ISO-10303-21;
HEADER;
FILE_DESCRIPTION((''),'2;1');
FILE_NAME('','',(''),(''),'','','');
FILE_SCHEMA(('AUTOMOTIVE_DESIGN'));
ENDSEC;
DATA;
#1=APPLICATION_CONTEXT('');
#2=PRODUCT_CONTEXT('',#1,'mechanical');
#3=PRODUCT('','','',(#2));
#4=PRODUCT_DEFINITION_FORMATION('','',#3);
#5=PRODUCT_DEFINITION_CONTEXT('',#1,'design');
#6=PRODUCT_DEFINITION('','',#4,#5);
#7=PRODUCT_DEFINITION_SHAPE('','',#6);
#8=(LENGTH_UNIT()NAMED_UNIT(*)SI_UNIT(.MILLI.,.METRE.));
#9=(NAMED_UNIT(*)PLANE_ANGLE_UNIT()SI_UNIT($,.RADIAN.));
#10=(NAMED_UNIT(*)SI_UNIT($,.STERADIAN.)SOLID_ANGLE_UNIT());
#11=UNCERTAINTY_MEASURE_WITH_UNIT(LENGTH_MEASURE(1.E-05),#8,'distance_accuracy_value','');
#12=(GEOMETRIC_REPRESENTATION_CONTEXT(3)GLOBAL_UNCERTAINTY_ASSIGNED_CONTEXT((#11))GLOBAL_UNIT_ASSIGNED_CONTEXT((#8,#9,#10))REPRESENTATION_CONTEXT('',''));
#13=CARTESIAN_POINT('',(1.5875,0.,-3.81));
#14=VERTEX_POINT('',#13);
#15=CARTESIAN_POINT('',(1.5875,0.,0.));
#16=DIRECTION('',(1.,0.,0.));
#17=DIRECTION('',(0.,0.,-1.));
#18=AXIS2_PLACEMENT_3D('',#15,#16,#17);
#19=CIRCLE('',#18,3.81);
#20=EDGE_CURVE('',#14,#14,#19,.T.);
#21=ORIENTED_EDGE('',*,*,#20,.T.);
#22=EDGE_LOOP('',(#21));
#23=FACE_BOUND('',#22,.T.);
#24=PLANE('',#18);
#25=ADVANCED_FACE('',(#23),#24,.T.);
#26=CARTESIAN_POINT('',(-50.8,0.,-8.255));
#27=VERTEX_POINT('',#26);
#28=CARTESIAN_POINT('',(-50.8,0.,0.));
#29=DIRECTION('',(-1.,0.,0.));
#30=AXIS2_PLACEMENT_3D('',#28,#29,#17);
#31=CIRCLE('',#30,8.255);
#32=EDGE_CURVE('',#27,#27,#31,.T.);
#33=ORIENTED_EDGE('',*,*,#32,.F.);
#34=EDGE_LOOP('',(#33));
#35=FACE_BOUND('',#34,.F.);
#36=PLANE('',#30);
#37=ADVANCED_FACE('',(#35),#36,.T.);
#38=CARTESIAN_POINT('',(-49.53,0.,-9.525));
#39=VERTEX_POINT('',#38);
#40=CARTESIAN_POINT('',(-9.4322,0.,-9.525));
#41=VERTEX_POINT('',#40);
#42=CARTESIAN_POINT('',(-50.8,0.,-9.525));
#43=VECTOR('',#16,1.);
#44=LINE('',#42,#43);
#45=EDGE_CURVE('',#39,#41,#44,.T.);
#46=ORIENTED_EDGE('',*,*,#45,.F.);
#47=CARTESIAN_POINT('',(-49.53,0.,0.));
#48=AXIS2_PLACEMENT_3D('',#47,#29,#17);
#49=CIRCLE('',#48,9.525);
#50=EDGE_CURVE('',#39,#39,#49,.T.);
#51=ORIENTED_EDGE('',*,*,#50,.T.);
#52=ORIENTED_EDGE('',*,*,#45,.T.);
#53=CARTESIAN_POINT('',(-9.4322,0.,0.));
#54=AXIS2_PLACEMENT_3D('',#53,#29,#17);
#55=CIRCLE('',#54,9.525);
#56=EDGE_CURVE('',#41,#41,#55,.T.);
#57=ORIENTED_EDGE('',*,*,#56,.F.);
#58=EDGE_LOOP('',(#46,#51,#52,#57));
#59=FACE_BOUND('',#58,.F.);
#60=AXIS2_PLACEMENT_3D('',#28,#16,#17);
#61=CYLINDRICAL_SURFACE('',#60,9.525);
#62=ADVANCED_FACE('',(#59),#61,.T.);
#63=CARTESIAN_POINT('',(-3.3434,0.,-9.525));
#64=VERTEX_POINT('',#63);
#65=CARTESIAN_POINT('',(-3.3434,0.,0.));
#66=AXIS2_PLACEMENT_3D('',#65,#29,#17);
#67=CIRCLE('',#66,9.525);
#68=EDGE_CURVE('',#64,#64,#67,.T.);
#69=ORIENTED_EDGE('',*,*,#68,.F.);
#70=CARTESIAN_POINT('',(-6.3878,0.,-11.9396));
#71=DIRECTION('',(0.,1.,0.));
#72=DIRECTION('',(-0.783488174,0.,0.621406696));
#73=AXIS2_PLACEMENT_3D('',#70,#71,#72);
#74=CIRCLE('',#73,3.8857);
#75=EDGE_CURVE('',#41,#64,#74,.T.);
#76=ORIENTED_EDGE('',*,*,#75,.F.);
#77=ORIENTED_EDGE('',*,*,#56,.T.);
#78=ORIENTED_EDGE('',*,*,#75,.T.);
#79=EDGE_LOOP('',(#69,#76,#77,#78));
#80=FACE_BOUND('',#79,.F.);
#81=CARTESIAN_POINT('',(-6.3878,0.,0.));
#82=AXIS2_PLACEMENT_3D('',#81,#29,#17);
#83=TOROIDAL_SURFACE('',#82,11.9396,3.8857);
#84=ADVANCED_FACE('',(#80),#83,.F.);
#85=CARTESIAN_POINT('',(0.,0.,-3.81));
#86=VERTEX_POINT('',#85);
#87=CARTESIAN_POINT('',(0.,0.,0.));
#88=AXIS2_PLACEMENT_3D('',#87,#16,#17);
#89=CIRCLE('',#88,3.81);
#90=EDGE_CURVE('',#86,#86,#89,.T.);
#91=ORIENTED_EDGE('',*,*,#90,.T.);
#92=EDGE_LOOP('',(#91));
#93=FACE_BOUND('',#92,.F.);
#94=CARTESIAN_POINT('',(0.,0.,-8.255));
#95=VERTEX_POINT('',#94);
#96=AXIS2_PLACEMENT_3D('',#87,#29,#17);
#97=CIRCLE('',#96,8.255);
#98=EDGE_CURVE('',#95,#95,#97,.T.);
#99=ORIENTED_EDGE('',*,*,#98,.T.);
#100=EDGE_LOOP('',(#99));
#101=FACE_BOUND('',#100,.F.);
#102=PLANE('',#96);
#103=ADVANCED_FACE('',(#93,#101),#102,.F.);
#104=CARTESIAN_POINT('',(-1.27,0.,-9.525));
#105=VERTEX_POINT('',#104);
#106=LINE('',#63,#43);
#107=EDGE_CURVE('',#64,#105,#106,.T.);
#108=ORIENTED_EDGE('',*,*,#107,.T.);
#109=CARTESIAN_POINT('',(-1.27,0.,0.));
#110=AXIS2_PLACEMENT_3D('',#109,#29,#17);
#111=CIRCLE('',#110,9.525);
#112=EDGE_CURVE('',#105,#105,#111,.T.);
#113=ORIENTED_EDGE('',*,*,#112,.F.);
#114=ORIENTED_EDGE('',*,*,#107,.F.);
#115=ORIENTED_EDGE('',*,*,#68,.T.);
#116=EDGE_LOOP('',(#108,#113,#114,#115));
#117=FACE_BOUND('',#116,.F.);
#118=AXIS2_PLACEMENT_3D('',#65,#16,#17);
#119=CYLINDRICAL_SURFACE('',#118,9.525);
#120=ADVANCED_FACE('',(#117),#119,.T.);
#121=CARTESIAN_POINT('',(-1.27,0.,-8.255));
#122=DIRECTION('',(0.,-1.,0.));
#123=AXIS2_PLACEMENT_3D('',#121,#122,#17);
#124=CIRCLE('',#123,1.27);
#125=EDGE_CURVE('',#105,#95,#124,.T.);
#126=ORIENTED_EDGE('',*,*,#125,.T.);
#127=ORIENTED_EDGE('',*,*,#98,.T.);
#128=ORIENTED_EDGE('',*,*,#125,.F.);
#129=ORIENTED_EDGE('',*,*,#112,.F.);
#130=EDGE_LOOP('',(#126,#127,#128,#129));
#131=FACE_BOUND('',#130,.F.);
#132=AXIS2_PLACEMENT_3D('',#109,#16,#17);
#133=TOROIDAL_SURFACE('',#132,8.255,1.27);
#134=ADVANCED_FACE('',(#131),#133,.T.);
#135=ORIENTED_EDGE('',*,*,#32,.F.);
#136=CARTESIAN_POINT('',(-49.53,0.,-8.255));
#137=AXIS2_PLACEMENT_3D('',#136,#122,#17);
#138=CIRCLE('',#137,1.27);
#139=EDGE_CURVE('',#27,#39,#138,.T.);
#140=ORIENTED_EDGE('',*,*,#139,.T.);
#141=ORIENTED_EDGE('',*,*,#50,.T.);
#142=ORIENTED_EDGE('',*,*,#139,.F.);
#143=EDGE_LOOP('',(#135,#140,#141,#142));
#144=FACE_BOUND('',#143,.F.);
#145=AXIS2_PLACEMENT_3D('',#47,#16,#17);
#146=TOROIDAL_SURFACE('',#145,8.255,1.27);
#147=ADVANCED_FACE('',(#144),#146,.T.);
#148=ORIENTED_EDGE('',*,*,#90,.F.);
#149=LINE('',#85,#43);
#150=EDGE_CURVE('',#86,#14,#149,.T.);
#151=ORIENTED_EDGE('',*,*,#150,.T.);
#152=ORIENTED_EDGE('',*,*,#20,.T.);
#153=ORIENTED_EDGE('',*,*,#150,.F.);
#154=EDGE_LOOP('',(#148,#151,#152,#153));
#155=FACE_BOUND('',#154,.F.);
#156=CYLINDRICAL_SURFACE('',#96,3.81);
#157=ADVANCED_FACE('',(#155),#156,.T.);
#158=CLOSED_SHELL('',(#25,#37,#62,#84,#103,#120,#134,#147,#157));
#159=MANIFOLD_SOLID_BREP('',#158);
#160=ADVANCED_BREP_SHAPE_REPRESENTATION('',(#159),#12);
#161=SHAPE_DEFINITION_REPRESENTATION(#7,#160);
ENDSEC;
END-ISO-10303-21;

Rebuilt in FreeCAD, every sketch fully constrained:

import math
import FreeCAD as App
import Part
import Sketcher

V = App.Vector
Q = App.Units.Quantity


def edges_at(feature, points):
    """Names of the edges that pass closest to the given points."""
    edges = feature.Shape.Edges
    near = lambda p: min(range(len(edges)), key=lambda i: edges[i].distToShape(Part.Vertex(*p))[0])
    return sorted({f"Edge{near(p) + 1}" for p in points})

doc = App.newDocument("Part")
body = doc.addObject("PartDesign::Body", "Body")

sketch1 = body.newObject("Sketcher::SketchObject", "Sketch")
sketch1.AttachmentSupport = (doc.getObject("XZ_Plane"), [""])
sketch1.MapMode = "FlatFace"
sketch1.addGeometry([
    Part.LineSegment(V(-50.8, 0, 0), V(0, 0, 0)),
    Part.LineSegment(V(0, 0, 0), V(0, -9.525, 0)),
    Part.LineSegment(V(0, -9.525, 0), V(-3.3434, -9.525, 0)),
    Part.ArcOfCircle(Part.Circle(V(-6.3878, -11.9396, 0), V(0, 0, 1), 3.8857), math.radians(38.418932), math.radians(141.581068)),
    Part.LineSegment(V(-9.4322, -9.525, 0), V(-50.8, -9.525, 0)),
    Part.LineSegment(V(-50.8, -9.525, 0), V(-50.8, 0, 0)),
], False)
sketch1.addConstraint([
    Sketcher.Constraint("Coincident", 0, 2, 1, 1),
    Sketcher.Constraint("Coincident", 1, 2, 2, 1),
    Sketcher.Constraint("Coincident", 2, 2, 3, 1),
    Sketcher.Constraint("Coincident", 3, 2, 4, 1),
    Sketcher.Constraint("Coincident", 4, 2, 5, 1),
    Sketcher.Constraint("Coincident", 5, 2, 0, 1),
    Sketcher.Constraint("Horizontal", 0),
    Sketcher.Constraint("Vertical", 1),
    Sketcher.Constraint("Horizontal", 2),
    Sketcher.Constraint("Horizontal", 4),
    Sketcher.Constraint("Vertical", 5),
    Sketcher.Constraint("Coincident", 0, 2, -1, 1),
    Sketcher.Constraint("Horizontal", 2, 2, 3, 2),
    Sketcher.Constraint("DistanceX", 0, 1, 0, 2, Q("2 in")),
    Sketcher.Constraint("DistanceY", 1, 2, 1, 1, Q("0.375 in")),
    Sketcher.Constraint("Radius", 3, 3.8857),
    Sketcher.Constraint("DistanceX", 2, 2, 2, 1, 3.3434),
    Sketcher.Constraint("DistanceX", 4, 2, 4, 1, 41.3678),
])
revolution = body.newObject("PartDesign::Revolution", "Revolution")
revolution.Profile = sketch1
revolution.ReferenceAxis = (sketch1, ["H_Axis"])
revolution.Angle = 360

sketch2 = body.newObject("Sketcher::SketchObject", "Sketch001")
sketch2.AttachmentSupport = (doc.getObject("YZ_Plane"), [""])
sketch2.MapMode = "FlatFace"
sketch2.addGeometry(Part.Circle(V(0, 0, 0), V(0, 0, 1), 3.81), False)
sketch2.addConstraint([
    Sketcher.Constraint("Coincident", 0, 3, -1, 1),
    Sketcher.Constraint("Diameter", 0, Q("0.3 in")),
])
pad1 = body.newObject("PartDesign::Pad", "Pad")
pad1.Profile = sketch2
pad1.Length = Q("0.0625 in")
doc.recompute()

fillet = body.newObject("PartDesign::Fillet", "Fillet")
fillet.Base = (pad1, edges_at(pad1, [(0, 0, 9.525), (-50.8, 0, 9.525)]))
fillet.Radius = Q("0.05 in")

doc.recompute()
